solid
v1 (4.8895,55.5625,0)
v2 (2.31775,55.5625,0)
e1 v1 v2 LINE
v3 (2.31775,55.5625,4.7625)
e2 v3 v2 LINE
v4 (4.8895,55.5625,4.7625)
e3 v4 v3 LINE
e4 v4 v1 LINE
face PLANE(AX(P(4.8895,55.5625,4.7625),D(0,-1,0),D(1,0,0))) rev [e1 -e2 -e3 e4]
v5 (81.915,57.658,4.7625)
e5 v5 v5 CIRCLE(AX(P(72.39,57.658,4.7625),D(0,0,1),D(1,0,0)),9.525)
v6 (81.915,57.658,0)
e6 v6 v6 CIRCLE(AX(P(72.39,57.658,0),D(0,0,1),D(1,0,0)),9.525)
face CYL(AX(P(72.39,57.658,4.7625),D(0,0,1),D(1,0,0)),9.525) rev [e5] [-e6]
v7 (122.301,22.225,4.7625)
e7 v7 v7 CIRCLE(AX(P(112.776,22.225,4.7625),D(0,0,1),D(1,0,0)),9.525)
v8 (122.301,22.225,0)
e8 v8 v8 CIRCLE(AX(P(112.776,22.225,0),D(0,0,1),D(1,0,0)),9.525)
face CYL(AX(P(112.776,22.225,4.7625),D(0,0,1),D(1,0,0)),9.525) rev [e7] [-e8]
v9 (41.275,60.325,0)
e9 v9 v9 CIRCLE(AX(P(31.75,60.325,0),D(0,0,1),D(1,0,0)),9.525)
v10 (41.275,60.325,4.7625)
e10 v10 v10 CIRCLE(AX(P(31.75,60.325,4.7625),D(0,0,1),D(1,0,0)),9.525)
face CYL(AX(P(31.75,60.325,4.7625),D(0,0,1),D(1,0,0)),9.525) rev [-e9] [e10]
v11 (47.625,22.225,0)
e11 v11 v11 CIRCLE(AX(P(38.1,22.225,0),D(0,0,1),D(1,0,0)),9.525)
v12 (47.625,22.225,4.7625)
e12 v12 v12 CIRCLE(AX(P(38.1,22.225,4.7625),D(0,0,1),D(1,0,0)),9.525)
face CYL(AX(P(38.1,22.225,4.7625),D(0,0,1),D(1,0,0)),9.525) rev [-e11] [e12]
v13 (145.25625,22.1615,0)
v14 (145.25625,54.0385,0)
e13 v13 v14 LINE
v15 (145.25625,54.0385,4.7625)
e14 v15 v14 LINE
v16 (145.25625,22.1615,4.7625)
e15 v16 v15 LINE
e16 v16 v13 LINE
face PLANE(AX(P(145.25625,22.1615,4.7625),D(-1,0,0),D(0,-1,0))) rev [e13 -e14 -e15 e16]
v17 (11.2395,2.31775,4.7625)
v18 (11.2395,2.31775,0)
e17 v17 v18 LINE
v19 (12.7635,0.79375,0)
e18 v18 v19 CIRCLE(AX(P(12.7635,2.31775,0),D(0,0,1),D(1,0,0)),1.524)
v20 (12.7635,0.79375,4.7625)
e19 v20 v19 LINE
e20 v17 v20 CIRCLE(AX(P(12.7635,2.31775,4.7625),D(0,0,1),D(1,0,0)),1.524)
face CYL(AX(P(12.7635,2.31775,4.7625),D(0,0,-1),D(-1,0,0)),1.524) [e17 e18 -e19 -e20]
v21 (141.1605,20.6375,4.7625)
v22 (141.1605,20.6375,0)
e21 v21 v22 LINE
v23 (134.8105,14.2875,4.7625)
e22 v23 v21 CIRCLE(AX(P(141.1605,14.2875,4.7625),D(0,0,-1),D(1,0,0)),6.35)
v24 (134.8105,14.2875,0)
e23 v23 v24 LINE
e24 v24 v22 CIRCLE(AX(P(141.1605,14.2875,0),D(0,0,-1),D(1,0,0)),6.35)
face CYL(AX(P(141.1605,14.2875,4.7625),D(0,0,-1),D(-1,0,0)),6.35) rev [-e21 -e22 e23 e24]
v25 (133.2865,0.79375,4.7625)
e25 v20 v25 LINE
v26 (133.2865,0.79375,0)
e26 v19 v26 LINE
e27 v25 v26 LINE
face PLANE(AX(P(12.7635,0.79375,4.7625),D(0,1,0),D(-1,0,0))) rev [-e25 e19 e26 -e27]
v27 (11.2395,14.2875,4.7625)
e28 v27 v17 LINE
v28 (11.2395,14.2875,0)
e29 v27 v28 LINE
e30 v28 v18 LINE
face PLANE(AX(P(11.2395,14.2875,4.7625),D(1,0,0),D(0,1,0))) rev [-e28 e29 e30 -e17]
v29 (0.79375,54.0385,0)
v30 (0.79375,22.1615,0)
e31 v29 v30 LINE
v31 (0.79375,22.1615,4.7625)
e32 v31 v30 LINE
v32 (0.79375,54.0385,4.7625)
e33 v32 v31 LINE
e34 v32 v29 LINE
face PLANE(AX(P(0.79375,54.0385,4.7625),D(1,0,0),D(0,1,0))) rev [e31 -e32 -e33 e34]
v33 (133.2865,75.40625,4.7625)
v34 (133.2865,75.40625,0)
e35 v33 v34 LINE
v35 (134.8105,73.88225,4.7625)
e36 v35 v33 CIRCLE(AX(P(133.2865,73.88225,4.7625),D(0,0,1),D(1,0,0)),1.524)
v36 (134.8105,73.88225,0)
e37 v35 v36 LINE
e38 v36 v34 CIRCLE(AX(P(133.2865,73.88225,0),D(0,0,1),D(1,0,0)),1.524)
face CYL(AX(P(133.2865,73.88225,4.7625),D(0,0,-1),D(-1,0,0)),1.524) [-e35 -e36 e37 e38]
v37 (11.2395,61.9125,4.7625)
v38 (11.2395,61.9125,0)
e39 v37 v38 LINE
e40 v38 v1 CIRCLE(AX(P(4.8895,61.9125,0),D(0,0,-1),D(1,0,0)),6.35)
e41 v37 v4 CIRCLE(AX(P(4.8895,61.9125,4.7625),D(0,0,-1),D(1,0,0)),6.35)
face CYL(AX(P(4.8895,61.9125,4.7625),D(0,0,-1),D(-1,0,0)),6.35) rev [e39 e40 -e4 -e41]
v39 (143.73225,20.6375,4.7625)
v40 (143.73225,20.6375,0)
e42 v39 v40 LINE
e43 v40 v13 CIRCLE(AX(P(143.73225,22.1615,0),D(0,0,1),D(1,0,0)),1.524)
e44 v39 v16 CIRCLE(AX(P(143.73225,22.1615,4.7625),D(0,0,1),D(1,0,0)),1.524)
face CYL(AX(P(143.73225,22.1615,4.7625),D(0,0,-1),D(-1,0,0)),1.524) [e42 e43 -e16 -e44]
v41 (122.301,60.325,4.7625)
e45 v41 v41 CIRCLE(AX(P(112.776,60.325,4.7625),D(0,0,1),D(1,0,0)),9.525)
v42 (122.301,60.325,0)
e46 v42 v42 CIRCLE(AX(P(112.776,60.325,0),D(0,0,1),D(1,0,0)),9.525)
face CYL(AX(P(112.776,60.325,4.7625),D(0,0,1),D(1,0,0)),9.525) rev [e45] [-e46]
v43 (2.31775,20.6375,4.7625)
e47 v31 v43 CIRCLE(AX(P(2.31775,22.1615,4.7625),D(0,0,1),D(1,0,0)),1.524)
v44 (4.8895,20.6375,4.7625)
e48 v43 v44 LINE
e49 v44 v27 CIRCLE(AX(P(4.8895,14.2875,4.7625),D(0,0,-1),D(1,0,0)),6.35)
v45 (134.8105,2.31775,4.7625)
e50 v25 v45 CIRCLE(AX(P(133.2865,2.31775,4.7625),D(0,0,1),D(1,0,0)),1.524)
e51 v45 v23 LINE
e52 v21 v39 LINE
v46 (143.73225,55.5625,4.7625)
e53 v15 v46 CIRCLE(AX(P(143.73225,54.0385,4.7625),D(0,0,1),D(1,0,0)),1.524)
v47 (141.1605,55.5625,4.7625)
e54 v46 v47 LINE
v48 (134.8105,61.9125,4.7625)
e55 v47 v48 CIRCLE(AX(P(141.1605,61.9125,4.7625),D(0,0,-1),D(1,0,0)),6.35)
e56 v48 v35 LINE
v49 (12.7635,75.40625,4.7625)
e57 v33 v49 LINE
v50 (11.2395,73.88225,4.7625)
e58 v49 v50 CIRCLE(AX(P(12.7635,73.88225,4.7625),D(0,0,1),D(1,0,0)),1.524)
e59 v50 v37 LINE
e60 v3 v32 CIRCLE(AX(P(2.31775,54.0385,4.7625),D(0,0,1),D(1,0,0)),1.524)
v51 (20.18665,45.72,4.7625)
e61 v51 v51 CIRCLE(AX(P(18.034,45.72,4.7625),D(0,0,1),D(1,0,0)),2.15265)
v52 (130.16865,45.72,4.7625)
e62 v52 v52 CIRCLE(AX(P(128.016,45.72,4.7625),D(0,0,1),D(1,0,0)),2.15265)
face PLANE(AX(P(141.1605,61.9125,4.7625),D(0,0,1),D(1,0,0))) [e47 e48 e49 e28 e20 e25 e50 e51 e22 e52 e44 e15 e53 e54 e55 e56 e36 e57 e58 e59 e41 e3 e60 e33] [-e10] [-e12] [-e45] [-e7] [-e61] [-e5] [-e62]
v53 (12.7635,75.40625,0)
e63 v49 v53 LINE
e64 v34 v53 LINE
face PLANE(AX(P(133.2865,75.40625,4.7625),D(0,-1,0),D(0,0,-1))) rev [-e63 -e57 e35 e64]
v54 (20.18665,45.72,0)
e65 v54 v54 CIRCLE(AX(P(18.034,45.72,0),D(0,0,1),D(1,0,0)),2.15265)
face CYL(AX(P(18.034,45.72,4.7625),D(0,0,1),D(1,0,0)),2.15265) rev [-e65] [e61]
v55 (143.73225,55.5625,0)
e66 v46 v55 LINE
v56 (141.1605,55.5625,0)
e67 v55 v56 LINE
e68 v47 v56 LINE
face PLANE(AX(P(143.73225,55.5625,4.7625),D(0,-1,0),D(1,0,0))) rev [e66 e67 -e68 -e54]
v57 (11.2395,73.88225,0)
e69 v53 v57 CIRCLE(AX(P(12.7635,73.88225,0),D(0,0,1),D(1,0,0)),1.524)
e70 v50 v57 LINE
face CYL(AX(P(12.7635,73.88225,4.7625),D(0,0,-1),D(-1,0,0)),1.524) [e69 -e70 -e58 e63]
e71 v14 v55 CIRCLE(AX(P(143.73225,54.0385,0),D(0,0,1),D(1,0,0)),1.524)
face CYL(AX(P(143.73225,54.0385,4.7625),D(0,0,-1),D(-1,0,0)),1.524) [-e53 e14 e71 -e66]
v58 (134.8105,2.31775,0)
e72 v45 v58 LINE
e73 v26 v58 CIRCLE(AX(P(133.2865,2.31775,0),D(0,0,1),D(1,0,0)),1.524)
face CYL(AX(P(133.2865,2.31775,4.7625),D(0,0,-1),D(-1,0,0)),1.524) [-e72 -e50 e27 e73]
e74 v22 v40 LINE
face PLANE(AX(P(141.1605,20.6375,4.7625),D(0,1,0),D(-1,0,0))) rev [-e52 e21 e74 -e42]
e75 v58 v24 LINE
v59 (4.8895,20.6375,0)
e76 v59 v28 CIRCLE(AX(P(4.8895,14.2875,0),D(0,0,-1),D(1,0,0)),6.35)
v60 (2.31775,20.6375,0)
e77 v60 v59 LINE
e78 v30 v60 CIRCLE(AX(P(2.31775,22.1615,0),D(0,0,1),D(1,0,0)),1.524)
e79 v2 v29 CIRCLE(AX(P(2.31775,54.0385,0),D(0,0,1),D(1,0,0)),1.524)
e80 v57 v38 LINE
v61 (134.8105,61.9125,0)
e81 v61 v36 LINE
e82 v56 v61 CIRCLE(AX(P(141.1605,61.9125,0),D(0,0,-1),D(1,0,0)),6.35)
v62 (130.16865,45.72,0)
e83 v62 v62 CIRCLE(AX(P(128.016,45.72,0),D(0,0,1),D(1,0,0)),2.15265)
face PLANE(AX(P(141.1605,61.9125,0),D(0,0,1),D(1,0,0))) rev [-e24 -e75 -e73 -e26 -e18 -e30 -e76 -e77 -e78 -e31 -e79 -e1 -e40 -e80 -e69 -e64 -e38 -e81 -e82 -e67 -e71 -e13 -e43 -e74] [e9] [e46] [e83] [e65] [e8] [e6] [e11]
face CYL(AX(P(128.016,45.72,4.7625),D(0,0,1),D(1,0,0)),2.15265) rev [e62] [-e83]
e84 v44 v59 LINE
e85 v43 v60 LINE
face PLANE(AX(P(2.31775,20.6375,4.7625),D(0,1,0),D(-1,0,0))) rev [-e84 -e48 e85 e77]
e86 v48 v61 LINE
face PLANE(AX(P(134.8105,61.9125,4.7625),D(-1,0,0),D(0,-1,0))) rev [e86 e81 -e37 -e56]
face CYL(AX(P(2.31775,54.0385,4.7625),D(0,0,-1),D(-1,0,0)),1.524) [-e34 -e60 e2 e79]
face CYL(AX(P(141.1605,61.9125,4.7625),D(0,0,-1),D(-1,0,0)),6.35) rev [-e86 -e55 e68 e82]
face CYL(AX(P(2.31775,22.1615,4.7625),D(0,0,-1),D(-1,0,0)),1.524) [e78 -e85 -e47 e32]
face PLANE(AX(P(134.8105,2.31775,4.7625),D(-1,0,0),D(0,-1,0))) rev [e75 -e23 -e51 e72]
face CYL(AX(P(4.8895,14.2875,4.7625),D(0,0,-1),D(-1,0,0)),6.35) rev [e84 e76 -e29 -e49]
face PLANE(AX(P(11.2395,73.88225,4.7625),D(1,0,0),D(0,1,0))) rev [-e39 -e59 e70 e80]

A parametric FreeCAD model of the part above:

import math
import FreeCAD as App
import Part
import Sketcher
from FreeCAD import Vector
Q = App.Units.Quantity

doc = App.newDocument("Part")
body = doc.addObject("PartDesign::Body", "Body")

# Sketch on XY plane
sketch1 = body.newObject("Sketcher::SketchObject", "Sketch")
sketch1.AttachmentSupport = (doc.getObject("XY_Plane"), [""])
sketch1.MapMode = "FlatFace"
sketch1.addGeometry(Part.LineSegment(Vector(134.8, 61.9, 0), Vector(134.8, 73.9, 0)), False)
sketch1.addGeometry(Part.ArcOfCircle(Part.Circle(Vector(133.3, 73.9, 0), Vector(0, 0, 1), 1.5), math.radians(0), math.radians(90)), False)
sketch1.addGeometry(Part.LineSegment(Vector(133.3, 75.4, 0), Vector(12.8, 75.4, 0)), False)
sketch1.addGeometry(Part.ArcOfCircle(Part.Circle(Vector(12.8, 73.9, 0), Vector(0, 0, 1), 1.5), math.radians(90), math.radians(180)), False)
sketch1.addGeometry(Part.LineSegment(Vector(11.2, 73.9, 0), Vector(11.2, 61.9, 0)), False)
sketch1.addGeometry(Part.ArcOfCircle(Part.Circle(Vector(4.9, 61.9, 0), Vector(0, 0, 1), 6.3), math.radians(-90), math.radians(0)), False)
sketch1.addGeometry(Part.LineSegment(Vector(4.9, 55.6, 0), Vector(2.3, 55.6, 0)), False)
sketch1.addGeometry(Part.ArcOfCircle(Part.Circle(Vector(2.3, 54, 0), Vector(0, 0, 1), 1.5), math.radians(90), math.radians(180)), False)
sketch1.addGeometry(Part.LineSegment(Vector(0.8, 54, 0), Vector(0.8, 22.2, 0)), False)
sketch1.addGeometry(Part.ArcOfCircle(Part.Circle(Vector(2.3, 22.2, 0), Vector(0, 0, 1), 1.5), math.radians(180), math.radians(270)), False)
sketch1.addGeometry(Part.LineSegment(Vector(2.3, 20.6, 0), Vector(4.9, 20.6, 0)), False)
sketch1.addGeometry(Part.ArcOfCircle(Part.Circle(Vector(4.9, 14.3, 0), Vector(0, 0, 1), 6.3), math.radians(0), math.radians(90)), False)
sketch1.addGeometry(Part.LineSegment(Vector(11.2, 14.3, 0), Vector(11.2, 2.3, 0)), False)
sketch1.addGeometry(Part.ArcOfCircle(Part.Circle(Vector(12.8, 2.3, 0), Vector(0, 0, 1), 1.5), math.radians(180), math.radians(270)), False)
sketch1.addGeometry(Part.LineSegment(Vector(12.8, 0.8, 0), Vector(133.3, 0.8, 0)), False)
sketch1.addGeometry(Part.ArcOfCircle(Part.Circle(Vector(133.3, 2.3, 0), Vector(0, 0, 1), 1.5), math.radians(-90), math.radians(0)), False)
sketch1.addGeometry(Part.LineSegment(Vector(134.8, 2.3, 0), Vector(134.8, 14.3, 0)), False)
sketch1.addGeometry(Part.ArcOfCircle(Part.Circle(Vector(141.2, 14.3, 0), Vector(0, 0, 1), 6.3), math.radians(90), math.radians(180)), False)
sketch1.addGeometry(Part.LineSegment(Vector(141.2, 20.6, 0), Vector(143.7, 20.6, 0)), False)
sketch1.addGeometry(Part.ArcOfCircle(Part.Circle(Vector(143.7, 22.2, 0), Vector(0, 0, 1), 1.5), math.radians(-90), math.radians(0)), False)
sketch1.addGeometry(Part.LineSegment(Vector(145.3, 22.2, 0), Vector(145.3, 54, 0)), False)
sketch1.addGeometry(Part.ArcOfCircle(Part.Circle(Vector(143.7, 54, 0), Vector(0, 0, 1), 1.5), math.radians(0), math.radians(90)), False)
sketch1.addGeometry(Part.LineSegment(Vector(143.7, 55.6, 0), Vector(141.2, 55.6, 0)), False)
sketch1.addGeometry(Part.ArcOfCircle(Part.Circle(Vector(141.2, 61.9, 0), Vector(0, 0, 1), 6.3), math.radians(180), math.radians(270)), False)
sketch1.addConstraint(Sketcher.Constraint("Tangent", 0, 2, 1, 1))
sketch1.addConstraint(Sketcher.Constraint("Tangent", 1, 2, 2, 1))
sketch1.addConstraint(Sketcher.Constraint("Tangent", 2, 2, 3, 1))
sketch1.addConstraint(Sketcher.Constraint("Tangent", 3, 2, 4, 1))
sketch1.addConstraint(Sketcher.Constraint("Tangent", 4, 2, 5, 2))
sketch1.addConstraint(Sketcher.Constraint("Tangent", 5, 1, 6, 1))
sketch1.addConstraint(Sketcher.Constraint("Tangent", 6, 2, 7, 1))
sketch1.addConstraint(Sketcher.Constraint("Tangent", 7, 2, 8, 1))
sketch1.addConstraint(Sketcher.Constraint("Tangent", 8, 2, 9, 1))
sketch1.addConstraint(Sketcher.Constraint("Tangent", 9, 2, 10, 1))
sketch1.addConstraint(Sketcher.Constraint("Tangent", 10, 2, 11, 2))
sketch1.addConstraint(Sketcher.Constraint("Tangent", 11, 1, 12, 1))
sketch1.addConstraint(Sketcher.Constraint("Tangent", 12, 2, 13, 1))
sketch1.addConstraint(Sketcher.Constraint("Tangent", 13, 2, 14, 1))
sketch1.addConstraint(Sketcher.Constraint("Tangent", 14, 2, 15, 1))
sketch1.addConstraint(Sketcher.Constraint("Tangent", 15, 2, 16, 1))
sketch1.addConstraint(Sketcher.Constraint("Tangent", 16, 2, 17, 2))
sketch1.addConstraint(Sketcher.Constraint("Tangent", 17, 1, 18, 1))
sketch1.addConstraint(Sketcher.Constraint("Tangent", 18, 2, 19, 1))
sketch1.addConstraint(Sketcher.Constraint("Tangent", 19, 2, 20, 1))
sketch1.addConstraint(Sketcher.Constraint("Tangent", 20, 2, 21, 1))
sketch1.addConstraint(Sketcher.Constraint("Tangent", 21, 2, 22, 1))
sketch1.addConstraint(Sketcher.Constraint("Tangent", 22, 2, 23, 2))
sketch1.addConstraint(Sketcher.Constraint("Tangent", 23, 1, 0, 1))
sketch1.addConstraint(Sketcher.Constraint("Vertical", 0))
sketch1.addConstraint(Sketcher.Constraint("Horizontal", 2))
sketch1.addConstraint(Sketcher.Constraint("Vertical", 4))
sketch1.addConstraint(Sketcher.Constraint("Horizontal", 6))
sketch1.addConstraint(Sketcher.Constraint("Vertical", 8))
sketch1.addConstraint(Sketcher.Constraint("Horizontal", 10))
sketch1.addConstraint(Sketcher.Constraint("Vertical", 12))
sketch1.addConstraint(Sketcher.Constraint("Horizontal", 14))
sketch1.addConstraint(Sketcher.Constraint("Vertical", 16))
sketch1.addConstraint(Sketcher.Constraint("Horizontal", 18))
sketch1.addConstraint(Sketcher.Constraint("Vertical", 20))
sketch1.addConstraint(Sketcher.Constraint("Horizontal", 22))
sketch1.addConstraint(Sketcher.Constraint("Equal", 1, 3))
sketch1.addConstraint(Sketcher.Constraint("Equal", 3, 7))
sketch1.addConstraint(Sketcher.Constraint("Equal", 7, 9))
sketch1.addConstraint(Sketcher.Constraint("Equal", 5, 11))
sketch1.addConstraint(Sketcher.Constraint("Equal", 9, 13))
sketch1.addConstraint(Sketcher.Constraint("Equal", 13, 15))
sketch1.addConstraint(Sketcher.Constraint("Equal", 11, 17))
sketch1.addConstraint(Sketcher.Constraint("Equal", 15, 19))
sketch1.addConstraint(Sketcher.Constraint("Equal", 19, 21))
sketch1.addConstraint(Sketcher.Constraint("Equal", 17, 23))
sketch1.addConstraint(Sketcher.Constraint("Horizontal", 11, 3, 17, 3))
sketch1.addConstraint(Sketcher.Constraint("Horizontal", 7, 3, 21, 3))
sketch1.addConstraint(Sketcher.Constraint("Vertical", 5, 3, 11, 3))
sketch1.addConstraint(Sketcher.Constraint("Vertical", 1, 3, 15, 3))
sketch1.addConstraint(Sketcher.Constraint("Equal", 10, 18))
sketch1.addConstraint(Sketcher.Constraint("Equal", 4, 12))
sketch1.addConstraint(Sketcher.Constraint("Radius", 1, Q("0.06 in")))
sketch1.addConstraint(Sketcher.Constraint("Radius", 5, Q("0.25 in")))
sketch1.addConstraint(Sketcher.Constraint("DistanceX", 2, 2, 2, 1, Q("4.745 in")))
sketch1.addConstraint(Sketcher.Constraint("DistanceY", 8, 2, 8, 1, Q("1.255 in")))
sketch1.addConstraint(Sketcher.Constraint("DistanceY", -1, 1, 5, 3, Q("2.4375 in")))
sketch1.addConstraint(Sketcher.Constraint("DistanceY", -1, 1, 1, 2, Q("2.96875 in")))
sketch1.addConstraint(Sketcher.Constraint("DistanceX", -1, 1, 7, 2, Q("0.03125 in")))
sketch1.addConstraint(Sketcher.Constraint("DistanceX", -1, 1, 19, 2, Q("5.71875 in")))
pad1 = body.newObject("PartDesign::Pad", "Pad")
pad1.Profile = sketch1
pad1.Length = Q("0.1875 in")

# Sketch on XY plane
sketch2 = body.newObject("Sketcher::SketchObject", "Sketch001")
sketch2.AttachmentSupport = (doc.getObject("XY_Plane"), [""])
sketch2.MapMode = "FlatFace"
sketch2.AttachmentOffset = App.Placement(Vector(0, 0, 0.1875 * 25.4), App.Rotation())
sketch2.addGeometry(Part.Circle(Vector(32, 60, 0), Vector(0, 0, 1), 10), False)
sketch2.addGeometry(Part.Circle(Vector(72, 58, 0), Vector(0, 0, 1), 10), False)
sketch2.addGeometry(Part.Circle(Vector(113, 60, 0), Vector(0, 0, 1), 10), False)
sketch2.addGeometry(Part.Circle(Vector(113, 22, 0), Vector(0, 0, 1), 10), False)
sketch2.addGeometry(Part.Circle(Vector(38, 22, 0), Vector(0, 0, 1), 10), False)
sketch2.addConstraint(Sketcher.Constraint("Equal", 0, 1))
sketch2.addConstraint(Sketcher.Constraint("Equal", 1, 2))
sketch2.addConstraint(Sketcher.Constraint("Equal", 2, 3))
sketch2.addConstraint(Sketcher.Constraint("Equal", 3, 4))
sketch2.addConstraint(Sketcher.Constraint("Horizontal", 0, 3, 2, 3))
sketch2.addConstraint(Sketcher.Constraint("Horizontal", 3, 3, 4, 3))
sketch2.addConstraint(Sketcher.Constraint("Vertical", 2, 3, 3, 3))
sketch2.addConstraint(Sketcher.Constraint("Diameter", 0, Q("0.75 in")))
sketch2.addConstraint(Sketcher.Constraint("DistanceX", -1, 1, 4, 3, Q("1.5 in")))
sketch2.addConstraint(Sketcher.Constraint("DistanceX", 0, 3, 1, 3, Q("1.6 in")))
sketch2.addConstraint(Sketcher.Constraint("DistanceY", 3, 3, 2, 3, Q("1.5 in")))
sketch2.addConstraint(Sketcher.Constraint("DistanceX", -1, 1, 0, 3, Q("1.25 in")))
sketch2.addConstraint(Sketcher.Constraint("DistanceY", -1, 1, 1, 3, Q("2.27 in")))
sketch2.addConstraint(Sketcher.Constraint("DistanceX", -1, 1, 2, 3, Q("4.44 in")))
sketch2.addConstraint(Sketcher.Constraint("DistanceY", -1, 1, 0, 3, Q("2.375 in")))
doc.recompute()
hole = body.newObject("PartDesign::Hole", "Hole")
hole.Profile = sketch2
hole.ThreadType = "None"
hole.Diameter = Q("0.75 in")
hole.DepthType = "ThroughAll"

# Sketch on XY plane
sketch3 = body.newObject("Sketcher::SketchObject", "Sketch002")
sketch3.AttachmentSupport = (doc.getObject("XY_Plane"), [""])
sketch3.MapMode = "FlatFace"
sketch3.AttachmentOffset = App.Placement(Vector(0, 0, 0.1875 * 25.4), App.Rotation())
sketch3.addGeometry(Part.Circle(Vector(18, 45.7, 0), Vector(0, 0, 1), 2.2), False)
sketch3.addGeometry(Part.Circle(Vector(128, 45.7, 0), Vector(0, 0, 1), 2.2), False)
sketch3.addConstraint(Sketcher.Constraint("Equal", 0, 1))
sketch3.addConstraint(Sketcher.Constraint("Horizontal", 0, 3, 1, 3))
sketch3.addConstraint(Sketcher.Constraint("Diameter", 0, Q("0.1695 in")))
sketch3.addConstraint(Sketcher.Constraint("DistanceY", -1, 1, 0, 3, Q("1.8 in")))
sketch3.addConstraint(Sketcher.Constraint("DistanceX", -1, 1, 0, 3, Q("0.71 in")))
sketch3.addConstraint(Sketcher.Constraint("DistanceX", -1, 1, 1, 3, Q("5.04 in")))
doc.recompute()
hole2 = body.newObject("PartDesign::Hole", "Hole001")
hole2.Profile = sketch3
hole2.ThreadType = "None"
hole2.Diameter = Q("0.1695 in")
hole2.DepthType = "ThroughAll"

doc.recompute()
